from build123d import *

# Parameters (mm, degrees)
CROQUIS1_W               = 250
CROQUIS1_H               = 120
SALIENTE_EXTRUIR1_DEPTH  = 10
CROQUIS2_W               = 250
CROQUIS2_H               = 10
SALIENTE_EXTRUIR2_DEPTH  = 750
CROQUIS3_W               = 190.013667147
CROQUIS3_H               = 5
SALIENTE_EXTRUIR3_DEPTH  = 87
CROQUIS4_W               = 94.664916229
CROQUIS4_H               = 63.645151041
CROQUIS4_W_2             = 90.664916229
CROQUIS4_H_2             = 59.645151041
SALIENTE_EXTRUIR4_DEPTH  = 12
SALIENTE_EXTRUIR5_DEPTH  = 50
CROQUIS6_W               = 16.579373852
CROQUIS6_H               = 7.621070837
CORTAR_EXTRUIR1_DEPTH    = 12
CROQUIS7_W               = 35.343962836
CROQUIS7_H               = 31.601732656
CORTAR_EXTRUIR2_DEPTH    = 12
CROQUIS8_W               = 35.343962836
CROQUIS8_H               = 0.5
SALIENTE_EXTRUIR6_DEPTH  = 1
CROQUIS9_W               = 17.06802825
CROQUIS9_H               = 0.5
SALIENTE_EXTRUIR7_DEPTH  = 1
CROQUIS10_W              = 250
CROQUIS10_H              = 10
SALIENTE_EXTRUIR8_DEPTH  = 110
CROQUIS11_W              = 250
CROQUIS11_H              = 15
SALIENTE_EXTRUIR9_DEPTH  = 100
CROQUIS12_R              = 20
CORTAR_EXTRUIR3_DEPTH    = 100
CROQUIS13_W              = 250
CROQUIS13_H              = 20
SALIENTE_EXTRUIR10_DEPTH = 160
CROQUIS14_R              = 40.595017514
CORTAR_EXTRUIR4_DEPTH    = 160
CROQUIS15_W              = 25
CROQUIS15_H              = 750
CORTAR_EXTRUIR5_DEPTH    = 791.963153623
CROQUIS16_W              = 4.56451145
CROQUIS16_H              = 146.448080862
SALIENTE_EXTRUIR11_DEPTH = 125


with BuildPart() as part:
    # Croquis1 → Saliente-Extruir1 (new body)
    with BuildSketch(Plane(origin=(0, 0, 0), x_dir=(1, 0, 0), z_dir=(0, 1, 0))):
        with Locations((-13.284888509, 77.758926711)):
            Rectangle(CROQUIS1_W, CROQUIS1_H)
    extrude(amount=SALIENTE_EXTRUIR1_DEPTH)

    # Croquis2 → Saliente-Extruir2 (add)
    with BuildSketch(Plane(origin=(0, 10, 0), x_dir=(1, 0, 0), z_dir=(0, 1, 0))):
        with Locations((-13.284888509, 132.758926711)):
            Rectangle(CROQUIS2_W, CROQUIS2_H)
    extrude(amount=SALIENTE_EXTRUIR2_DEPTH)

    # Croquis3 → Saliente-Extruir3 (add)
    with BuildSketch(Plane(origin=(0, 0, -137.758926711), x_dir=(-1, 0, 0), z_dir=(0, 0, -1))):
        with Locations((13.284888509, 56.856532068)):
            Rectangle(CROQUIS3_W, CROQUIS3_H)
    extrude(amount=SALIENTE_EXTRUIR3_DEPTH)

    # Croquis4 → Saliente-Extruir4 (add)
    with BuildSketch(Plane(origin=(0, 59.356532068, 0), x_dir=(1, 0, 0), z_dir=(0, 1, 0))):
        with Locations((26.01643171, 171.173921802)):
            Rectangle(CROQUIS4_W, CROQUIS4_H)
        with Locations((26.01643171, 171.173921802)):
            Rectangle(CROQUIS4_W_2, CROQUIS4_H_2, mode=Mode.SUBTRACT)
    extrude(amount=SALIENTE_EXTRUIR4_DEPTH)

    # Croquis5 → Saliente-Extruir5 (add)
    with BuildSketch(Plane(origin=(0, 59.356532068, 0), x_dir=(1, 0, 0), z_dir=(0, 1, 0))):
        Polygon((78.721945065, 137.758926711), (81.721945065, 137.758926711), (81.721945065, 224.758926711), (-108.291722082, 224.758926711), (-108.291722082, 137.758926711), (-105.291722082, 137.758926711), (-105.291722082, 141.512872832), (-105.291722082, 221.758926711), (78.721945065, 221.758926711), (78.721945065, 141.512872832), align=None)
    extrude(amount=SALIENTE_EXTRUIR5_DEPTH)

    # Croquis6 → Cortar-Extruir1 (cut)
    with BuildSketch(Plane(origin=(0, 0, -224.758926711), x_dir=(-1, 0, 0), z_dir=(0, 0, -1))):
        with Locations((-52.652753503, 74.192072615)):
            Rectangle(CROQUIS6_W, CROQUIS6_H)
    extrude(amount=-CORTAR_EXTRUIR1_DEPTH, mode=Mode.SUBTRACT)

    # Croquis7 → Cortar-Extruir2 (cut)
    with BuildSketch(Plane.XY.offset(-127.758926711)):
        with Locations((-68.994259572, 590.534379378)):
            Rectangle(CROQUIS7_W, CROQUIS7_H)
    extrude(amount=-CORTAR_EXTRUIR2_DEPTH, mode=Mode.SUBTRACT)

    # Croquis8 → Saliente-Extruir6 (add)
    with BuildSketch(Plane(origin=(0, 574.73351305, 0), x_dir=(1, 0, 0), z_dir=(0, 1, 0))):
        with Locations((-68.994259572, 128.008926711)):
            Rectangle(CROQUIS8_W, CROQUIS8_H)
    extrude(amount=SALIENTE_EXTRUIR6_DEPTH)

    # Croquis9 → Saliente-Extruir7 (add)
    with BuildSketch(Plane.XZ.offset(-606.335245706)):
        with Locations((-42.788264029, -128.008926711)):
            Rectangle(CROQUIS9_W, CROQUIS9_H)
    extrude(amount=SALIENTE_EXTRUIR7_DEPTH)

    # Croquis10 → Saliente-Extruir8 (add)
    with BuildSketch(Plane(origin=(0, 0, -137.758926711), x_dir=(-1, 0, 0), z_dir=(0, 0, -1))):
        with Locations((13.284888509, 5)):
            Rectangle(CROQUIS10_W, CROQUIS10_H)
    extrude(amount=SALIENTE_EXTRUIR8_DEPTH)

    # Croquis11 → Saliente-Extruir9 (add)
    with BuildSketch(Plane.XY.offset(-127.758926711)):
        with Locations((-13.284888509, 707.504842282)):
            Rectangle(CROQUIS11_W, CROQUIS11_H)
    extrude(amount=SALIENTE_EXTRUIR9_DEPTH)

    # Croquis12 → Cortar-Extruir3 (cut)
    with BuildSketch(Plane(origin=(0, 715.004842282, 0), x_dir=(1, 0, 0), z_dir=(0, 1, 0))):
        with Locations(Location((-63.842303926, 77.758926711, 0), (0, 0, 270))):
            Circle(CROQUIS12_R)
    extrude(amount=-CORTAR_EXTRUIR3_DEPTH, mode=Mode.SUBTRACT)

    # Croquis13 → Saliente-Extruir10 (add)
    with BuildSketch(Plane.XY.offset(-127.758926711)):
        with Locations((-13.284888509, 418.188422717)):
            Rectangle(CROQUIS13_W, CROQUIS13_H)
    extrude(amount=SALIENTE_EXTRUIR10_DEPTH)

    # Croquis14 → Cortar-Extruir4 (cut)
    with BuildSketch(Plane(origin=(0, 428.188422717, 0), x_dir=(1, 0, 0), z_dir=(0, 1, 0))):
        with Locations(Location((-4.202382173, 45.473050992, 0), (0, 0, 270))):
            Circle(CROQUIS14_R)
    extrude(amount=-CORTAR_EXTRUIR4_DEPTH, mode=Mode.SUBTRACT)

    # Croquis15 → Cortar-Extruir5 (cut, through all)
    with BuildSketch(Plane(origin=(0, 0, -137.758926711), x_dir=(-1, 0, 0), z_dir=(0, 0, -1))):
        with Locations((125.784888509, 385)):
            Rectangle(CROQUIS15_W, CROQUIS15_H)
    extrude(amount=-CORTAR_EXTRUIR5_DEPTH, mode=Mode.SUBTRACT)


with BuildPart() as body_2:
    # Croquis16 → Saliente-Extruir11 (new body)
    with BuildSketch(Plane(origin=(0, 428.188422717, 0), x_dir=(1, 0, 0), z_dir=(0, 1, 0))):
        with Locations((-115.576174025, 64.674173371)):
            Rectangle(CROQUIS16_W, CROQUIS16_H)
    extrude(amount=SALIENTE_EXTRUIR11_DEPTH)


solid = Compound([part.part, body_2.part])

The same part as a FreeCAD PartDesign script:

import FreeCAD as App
import Part
import Sketcher
from FreeCAD import Vector


def add_polygon(sketch, points):
    """Adds a closed chain of lines whose ends are joined by coincident constraints."""
    first, n = sketch.GeometryCount, len(points)
    for a, b in zip(points, points[1:] + points[:1]):
        sketch.addGeometry(Part.LineSegment(App.Vector(*a, 0), App.Vector(*b, 0)), False)
    for i in range(n):
        sketch.addConstraint(Sketcher.Constraint("Coincident", first + i, 2, first + (i + 1) % n, 1))

doc = App.newDocument("Part")
body = doc.addObject("PartDesign::Body", "Body")

sketch1 = body.newObject("Sketcher::SketchObject", "Sketch")
sketch1.AttachmentSupport = (doc.getObject("XZ_Plane"), [""])
sketch1.MapMode = "FlatFace"
add_polygon(sketch1, [(-138.284889, -137.758927), (-138.284889, -17.758927), (111.715111, -17.758927), (111.715111, -137.758927)])
sketch1.addConstraint([
    Sketcher.Constraint("Vertical", 0),
    Sketcher.Constraint("Horizontal", 1),
    Sketcher.Constraint("Vertical", 2),
    Sketcher.Constraint("Horizontal", 3),
    Sketcher.Constraint("DistanceX", 1, 1, 1, 2, 250.0),
    Sketcher.Constraint("DistanceY", 0, 1, 0, 2, 120.0),
    Sketcher.Constraint("DistanceX", 0, 2, -1, 1, 138.284889),
    Sketcher.Constraint("DistanceY", 0, 2, -1, 1, 17.758927),
])
pad1 = body.newObject("PartDesign::Pad", "Pad")
pad1.Profile = sketch1
pad1.Length = 10
pad1.Reversed = True

sketch2 = body.newObject("Sketcher::SketchObject", "Sketch001")
sketch2.AttachmentSupport = (doc.getObject("XZ_Plane"), [""])
sketch2.MapMode = "FlatFace"
sketch2.AttachmentOffset = App.Placement(Vector(0, 0, -10), App.Rotation())
add_polygon(sketch2, [(-138.284889, -137.758927), (-138.284889, -127.758927), (111.715111, -127.758927), (111.715111, -137.758927)])
sketch2.addConstraint([
    Sketcher.Constraint("Vertical", 0),
    Sketcher.Constraint("Horizontal", 1),
    Sketcher.Constraint("Vertical", 2),
    Sketcher.Constraint("Horizontal", 3),
    Sketcher.Constraint("DistanceX", 1, 1, 1, 2, 250.0),
    Sketcher.Constraint("DistanceY", 0, 1, 0, 2, 10.0),
    Sketcher.Constraint("DistanceX", 0, 2, -1, 1, 138.284889),
    Sketcher.Constraint("DistanceY", 0, 2, -1, 1, 127.758927),
])
pad2 = body.newObject("PartDesign::Pad", "Pad001")
pad2.Profile = sketch2
pad2.Length = 750
pad2.Reversed = True

sketch3 = body.newObject("Sketcher::SketchObject", "Sketch002")
sketch3.AttachmentSupport = (doc.getObject("XY_Plane"), [""])
sketch3.MapMode = "FlatFace"
sketch3.AttachmentOffset = App.Placement(Vector(0, 0, -137.758927), App.Rotation())
add_polygon(sketch3, [(81.721945, 59.356532), (81.721945, 54.356532), (-108.291722, 54.356532), (-108.291722, 59.356532)])
sketch3.addConstraint([
    Sketcher.Constraint("Vertical", 0),
    Sketcher.Constraint("Horizontal", 1),
    Sketcher.Constraint("Vertical", 2),
    Sketcher.Constraint("Horizontal", 3),
    Sketcher.Constraint("DistanceY", 0, 2, 0, 1, 5.0),
    Sketcher.Constraint("DistanceX", 1, 2, 1, 1, 190.013667),
    Sketcher.Constraint("DistanceX", -1, 1, 0, 2, 81.721945),
    Sketcher.Constraint("DistanceY", -1, 1, 0, 2, 54.356532),
])
pad3 = body.newObject("PartDesign::Pad", "Pad002")
pad3.Profile = sketch3
pad3.Length = 87
pad3.Reversed = True

sketch4 = body.newObject("Sketcher::SketchObject", "Sketch003")
sketch4.AttachmentSupport = (doc.getObject("XZ_Plane"), [""])
sketch4.MapMode = "FlatFace"
sketch4.AttachmentOffset = App.Placement(Vector(0, 0, -59.356532), App.Rotation())
add_polygon(sketch4, [(-21.316026, -202.996497), (-21.316026, -139.351346), (73.34889, -139.351346), (73.34889, -202.996497)])
add_polygon(sketch4, [(71.34889, -141.351346), (-19.316026, -141.351346), (-19.316026, -200.996497), (71.34889, -200.996497)])
sketch4.addConstraint([
    Sketcher.Constraint("Vertical", 0),
    Sketcher.Constraint("Horizontal", 1),
    Sketcher.Constraint("Vertical", 2),
    Sketcher.Constraint("Horizontal", 3),
    Sketcher.Constraint("Horizontal", 4),
    Sketcher.Constraint("Vertical", 5),
    Sketcher.Constraint("Horizontal", 6),
    Sketcher.Constraint("Vertical", 7),
    Sketcher.Constraint("DistanceX", 0, 2, 4, 2, 2.0),
    Sketcher.Constraint("DistanceY", 4, 2, 0, 2, 2.0),
    Sketcher.Constraint("DistanceY", 3, 2, 5, 2, 2.0),
    Sketcher.Constraint("DistanceX", 6, 2, 2, 2, 2.0),
    Sketcher.Constraint("DistanceY", 0, 1, 0, 2, 63.645151),
    Sketcher.Constraint("DistanceX", 1, 1, 1, 2, 94.664916),
    Sketcher.Constraint("DistanceX", -1, 1, 1, 2, 73.34889),
    Sketcher.Constraint("DistanceY", 0, 2, -1, 1, 139.351346),
])
pad4 = body.newObject("PartDesign::Pad", "Pad003")
pad4.Profile = sketch4
pad4.Length = 12
pad4.Reversed = True

sketch5 = body.newObject("Sketcher::SketchObject", "Sketch004")
sketch5.AttachmentSupport = (doc.getObject("XZ_Plane"), [""])
sketch5.MapMode = "FlatFace"
sketch5.AttachmentOffset = App.Placement(Vector(0, 0, -59.356532), App.Rotation())
add_polygon(sketch5, [(78.721945, -137.758927), (81.721945, -137.758927), (81.721945, -224.758927), (-108.291722, -224.758927), (-108.291722, -137.758927), (-105.291722, -137.758927), (-105.291722, -221.758927), (78.721945, -221.758927)])
sketch5.addConstraint([
    Sketcher.Constraint("Horizontal", 0),
    Sketcher.Constraint("Vertical", 1),
    Sketcher.Constraint("Horizontal", 2),
    Sketcher.Constraint("Vertical", 3),
    Sketcher.Constraint("Horizontal", 4),
    Sketcher.Constraint("Vertical", 5),
    Sketcher.Constraint("Horizontal", 6),
    Sketcher.Constraint("Vertical", 7),
    Sketcher.Constraint("Horizontal", 0, 2, 3, 2),
    Sketcher.Constraint("Equal", 0, 4),
    Sketcher.Constraint("DistanceX", 0, 1, 0, 2, 3.0),
    Sketcher.Constraint("DistanceY", 1, 2, 1, 1, 87.0),
    Sketcher.Constraint("DistanceY", 5, 2, 5, 1, 84.0),
    Sketcher.Constraint("DistanceX", 2, 2, 2, 1, 190.013667),
    Sketcher.Constraint("DistanceX", -1, 1, 0, 2, 81.721945),
    Sketcher.Constraint("DistanceY", 0, 2, -1, 1, 137.758927),
])
pad5 = body.newObject("PartDesign::Pad", "Pad004")
pad5.Profile = sketch5
pad5.Length = 50
pad5.Reversed = True

sketch6 = body.newObject("Sketcher::SketchObject", "Sketch005")
sketch6.AttachmentSupport = (doc.getObject("XY_Plane"), [""])
sketch6.MapMode = "FlatFace"
sketch6.AttachmentOffset = App.Placement(Vector(0, 0, -224.758927), App.Rotation())
add_polygon(sketch6, [(60.94244, 78.002608), (60.94244, 70.381537), (44.363067, 70.381537), (44.363067, 78.002608)])
sketch6.addConstraint([
    Sketcher.Constraint("Vertical", 0),
    Sketcher.Constraint("Horizontal", 1),
    Sketcher.Constraint("Vertical", 2),
    Sketcher.Constraint("Horizontal", 3),
    Sketcher.Constraint("DistanceY", 0, 2, 0, 1, 7.621071),
    Sketcher.Constraint("DistanceX", 1, 2, 1, 1, 16.579374),
    Sketcher.Constraint("DistanceX", -1, 1, 0, 2, 60.94244),
    Sketcher.Constraint("DistanceY", -1, 1, 2, 2, 78.002608),
])
pocket1 = body.newObject("PartDesign::Pocket", "Pocket")
pocket1.Profile = sketch6
pocket1.Length = 12
pocket1.Reversed = True

sketch7 = body.newObject("Sketcher::SketchObject", "Sketch006")
sketch7.AttachmentSupport = (doc.getObject("XY_Plane"), [""])
sketch7.MapMode = "FlatFace"
sketch7.AttachmentOffset = App.Placement(Vector(0, 0, -127.758927), App.Rotation())
add_polygon(sketch7, [(-86.666241, 606.335246), (-86.666241, 574.733513), (-51.322278, 574.733513), (-51.322278, 606.335246)])
sketch7.addConstraint([
    Sketcher.Constraint("Vertical", 0),
    Sketcher.Constraint("Horizontal", 1),
    Sketcher.Constraint("Vertical", 2),
    Sketcher.Constraint("Horizontal", 3),
    Sketcher.Constraint("DistanceX", 1, 1, 1, 2, 35.343963),
    Sketcher.Constraint("DistanceY", 0, 2, 0, 1, 31.601733),
    Sketcher.Constraint("DistanceX", 0, 2, -1, 1, 86.666241),
    Sketcher.Constraint("DistanceY", -1, 1, 0, 2, 574.733513),
])
pocket2 = body.newObject("PartDesign::Pocket", "Pocket001")
pocket2.Profile = sketch7
pocket2.Length = 12

sketch8 = body.newObject("Sketcher::SketchObject", "Sketch007")
sketch8.AttachmentSupport = (doc.getObject("XZ_Plane"), [""])
sketch8.MapMode = "FlatFace"
sketch8.AttachmentOffset = App.Placement(Vector(0, 0, -574.733513), App.Rotation())
add_polygon(sketch8, [(-86.666241, -128.258927), (-86.666241, -127.758927), (-51.322278, -127.758927), (-51.322278, -128.258927)])
sketch8.addConstraint([
    Sketcher.Constraint("Vertical", 0),
    Sketcher.Constraint("Horizontal", 1),
    Sketcher.Constraint("Vertical", 2),
    Sketcher.Constraint("Horizontal", 3),
    Sketcher.Constraint("DistanceY", 0, 1, 0, 2, 0.5),
    Sketcher.Constraint("DistanceX", 1, 1, 1, 2, 35.343963),
    Sketcher.Constraint("DistanceX", 0, 2, -1, 1, 86.666241),
    Sketcher.Constraint("DistanceY", 0, 2, -1, 1, 127.758927),
])
pad6 = body.newObject("PartDesign::Pad", "Pad005")
pad6.Profile = sketch8
pad6.Length = 1
pad6.Reversed = True

sketch9 = body.newObject("Sketcher::SketchObject", "Sketch008")
sketch9.AttachmentSupport = (doc.getObject("XZ_Plane"), [""])
sketch9.MapMode = "FlatFace"
sketch9.AttachmentOffset = App.Placement(Vector(0, 0, -606.335246), App.Rotation())
add_polygon(sketch9, [(-51.322278, -127.758927), (-51.322278, -128.258927), (-34.25425, -128.258927), (-34.25425, -127.758927)])
sketch9.addConstraint([
    Sketcher.Constraint("Vertical", 0),
    Sketcher.Constraint("Horizontal", 1),
    Sketcher.Constraint("Vertical", 2),
    Sketcher.Constraint("Horizontal", 3),
    Sketcher.Constraint("DistanceY", 0, 2, 0, 1, 0.5),
    Sketcher.Constraint("DistanceX", 1, 1, 1, 2, 17.068028),
    Sketcher.Constraint("DistanceX", 0, 2, -1, 1, 51.322278),
    Sketcher.Constraint("DistanceY", 0, 2, -1, 1, 128.258927),
])
pad7 = body.newObject("PartDesign::Pad", "Pad006")
pad7.Profile = sketch9
pad7.Length = 1

sketch10 = body.newObject("Sketcher::SketchObject", "Sketch009")
sketch10.AttachmentSupport = (doc.getObject("XY_Plane"), [""])
sketch10.MapMode = "FlatFace"
sketch10.AttachmentOffset = App.Placement(Vector(0, 0, -137.758927), App.Rotation())
add_polygon(sketch10, [(111.715111, 10), (111.715111, 0), (-138.284889, 0), (-138.284889, 10)])
sketch10.addConstraint([
    Sketcher.Constraint("Vertical", 0),
    Sketcher.Constraint("Horizontal", 1),
    Sketcher.Constraint("Vertical", 2),
    Sketcher.Constraint("Horizontal", 3),
    Sketcher.Constraint("PointOnObject", 0, 2, -1),
    Sketcher.Constraint("DistanceX", 1, 2, 1, 1, 250.0),
    Sketcher.Constraint("DistanceY", 0, 2, 0, 1, 10.0),
    Sketcher.Constraint("DistanceX", -1, 1, 0, 2, 111.715111),
])
pad8 = body.newObject("PartDesign::Pad", "Pad007")
pad8.Profile = sketch10
pad8.Length = 110
pad8.Reversed = True

sketch11 = body.newObject("Sketcher::SketchObject", "Sketch010")
sketch11.AttachmentSupport = (doc.getObject("XY_Plane"), [""])
sketch11.MapMode = "FlatFace"
sketch11.AttachmentOffset = App.Placement(Vector(0, 0, -127.758927), App.Rotation())
add_polygon(sketch11, [(-138.284889, 715.004842), (-138.284889, 700.004842), (111.715111, 700.004842), (111.715111, 715.004842)])
sketch11.addConstraint([
    Sketcher.Constraint("Vertical", 0),
    Sketcher.Constraint("Horizontal", 1),
    Sketcher.Constraint("Vertical", 2),
    Sketcher.Constraint("Horizontal", 3),
    Sketcher.Constraint("DistanceX", 1, 1, 1, 2, 250.0),
    Sketcher.Constraint("DistanceY", 0, 2, 0, 1, 15.0),
    Sketcher.Constraint("DistanceX", 0, 2, -1, 1, 138.284889),
    Sketcher.Constraint("DistanceY", -1, 1, 0, 2, 700.004842),
])
pad9 = body.newObject("PartDesign::Pad", "Pad008")
pad9.Profile = sketch11
pad9.Length = 100

sketch12 = body.newObject("Sketcher::SketchObject", "Sketch011")
sketch12.AttachmentSupport = (doc.getObject("XZ_Plane"), [""])
sketch12.MapMode = "FlatFace"
sketch12.AttachmentOffset = App.Placement(Vector(0, 0, -715.004842), App.Rotation())
sketch12.addGeometry(Part.Circle(Vector(-63.842304, -77.758927, 0), Vector(0, 0, 1), 20), False)
sketch12.addConstraint([
    Sketcher.Constraint("Diameter", 0, 40.0),
    Sketcher.Constraint("DistanceX", 0, 3, -1, 1, 63.842304),
    Sketcher.Constraint("DistanceY", 0, 3, -1, 1, 77.758927),
])
pocket3 = body.newObject("PartDesign::Pocket", "Pocket002")
pocket3.Profile = sketch12
pocket3.Length = 100
pocket3.Reversed = True

sketch13 = body.newObject("Sketcher::SketchObject", "Sketch012")
sketch13.AttachmentSupport = (doc.getObject("XY_Plane"), [""])
sketch13.MapMode = "FlatFace"
sketch13.AttachmentOffset = App.Placement(Vector(0, 0, -127.758927), App.Rotation())
add_polygon(sketch13, [(-138.284889, 428.188423), (-138.284889, 408.188423), (111.715111, 408.188423), (111.715111, 428.188423)])
sketch13.addConstraint([
    Sketcher.Constraint("Vertical", 0),
    Sketcher.Constraint("Horizontal", 1),
    Sketcher.Constraint("Vertical", 2),
    Sketcher.Constraint("Horizontal", 3),
    Sketcher.Constraint("DistanceX", 1, 1, 1, 2, 250.0),
    Sketcher.Constraint("DistanceY", 0, 2, 0, 1, 20.0),
    Sketcher.Constraint("DistanceX", 0, 2, -1, 1, 138.284889),
    Sketcher.Constraint("DistanceY", -1, 1, 0, 2, 408.188423),
])
pad10 = body.newObject("PartDesign::Pad", "Pad009")
pad10.Profile = sketch13
pad10.Length = 160

sketch14 = body.newObject("Sketcher::SketchObject", "Sketch013")
sketch14.AttachmentSupport = (doc.getObject("XZ_Plane"), [""])
sketch14.MapMode = "FlatFace"
sketch14.AttachmentOffset = App.Placement(Vector(0, 0, -428.188423), App.Rotation())
sketch14.addGeometry(Part.Circle(Vector(-4.202382, -45.473051, 0), Vector(0, 0, 1), 40.595018), False)
sketch14.addConstraint([
    Sketcher.Constraint("Diameter", 0, 81.190035),
    Sketcher.Constraint("DistanceY", 0, 3, -1, 1, 45.473051),
    Sketcher.Constraint("DistanceX", 0, 3, -1, 1, 4.202382),
])
pocket4 = body.newObject("PartDesign::Pocket", "Pocket003")
pocket4.Profile = sketch14
pocket4.Length = 160
pocket4.Reversed = True

sketch15 = body.newObject("Sketcher::SketchObject", "Sketch014")
sketch15.AttachmentSupport = (doc.getObject("XY_Plane"), [""])
sketch15.MapMode = "FlatFace"
sketch15.AttachmentOffset = App.Placement(Vector(0, 0, -137.758927), App.Rotation())
add_polygon(sketch15, [(-113.284889, 760), (-113.284889, 10), (-138.284889, 10), (-138.284889, 760)])
sketch15.addConstraint([
    Sketcher.Constraint("Vertical", 0),
    Sketcher.Constraint("Horizontal", 1),
    Sketcher.Constraint("Vertical", 2),
    Sketcher.Constraint("Horizontal", 3),
    Sketcher.Constraint("DistanceX", 1, 2, 1, 1, 25.0),
    Sketcher.Constraint("DistanceY", 0, 2, 0, 1, 750.0),
    Sketcher.Constraint("DistanceY", -1, 1, 0, 2, 10.0),
    Sketcher.Constraint("DistanceX", 0, 2, -1, 1, 113.284889),
])
pocket5 = body.newObject("PartDesign::Pocket", "Pocket004")
pocket5.Profile = sketch15
pocket5.Type = "ThroughAll"
pocket5.Reversed = True
body2 = doc.addObject("PartDesign::Body", "Body001")

sketch16 = body2.newObject("Sketcher::SketchObject", "Sketch015")
sketch16.AttachmentSupport = (doc.getObject("XZ_Plane001"), [""])
sketch16.MapMode = "FlatFace"
sketch16.AttachmentOffset = App.Placement(Vector(0, 0, -428.188423), App.Rotation())
add_polygon(sketch16, [(-117.85843, -137.898214), (-117.85843, 8.549867), (-113.293918, 8.549867), (-113.293918, -137.898214)])
sketch16.addConstraint([
    Sketcher.Constraint("Vertical", 0),
    Sketcher.Constraint("Horizontal", 1),
    Sketcher.Constraint("Vertical", 2),
    Sketcher.Constraint("Horizontal", 3),
    Sketcher.Constraint("DistanceX", 1, 1, 1, 2, 4.564511),
    Sketcher.Constraint("DistanceY", 0, 1, 0, 2, 146.448081),
    Sketcher.Constraint("DistanceX", 0, 2, -1, 1, 117.85843),
    Sketcher.Constraint("DistanceY", -1, 1, 0, 2, 8.549867),
])
pad11 = body2.newObject("PartDesign::Pad", "Pad010")
pad11.Profile = sketch16
pad11.Length = 125
pad11.Reversed = True

doc.recompute()
